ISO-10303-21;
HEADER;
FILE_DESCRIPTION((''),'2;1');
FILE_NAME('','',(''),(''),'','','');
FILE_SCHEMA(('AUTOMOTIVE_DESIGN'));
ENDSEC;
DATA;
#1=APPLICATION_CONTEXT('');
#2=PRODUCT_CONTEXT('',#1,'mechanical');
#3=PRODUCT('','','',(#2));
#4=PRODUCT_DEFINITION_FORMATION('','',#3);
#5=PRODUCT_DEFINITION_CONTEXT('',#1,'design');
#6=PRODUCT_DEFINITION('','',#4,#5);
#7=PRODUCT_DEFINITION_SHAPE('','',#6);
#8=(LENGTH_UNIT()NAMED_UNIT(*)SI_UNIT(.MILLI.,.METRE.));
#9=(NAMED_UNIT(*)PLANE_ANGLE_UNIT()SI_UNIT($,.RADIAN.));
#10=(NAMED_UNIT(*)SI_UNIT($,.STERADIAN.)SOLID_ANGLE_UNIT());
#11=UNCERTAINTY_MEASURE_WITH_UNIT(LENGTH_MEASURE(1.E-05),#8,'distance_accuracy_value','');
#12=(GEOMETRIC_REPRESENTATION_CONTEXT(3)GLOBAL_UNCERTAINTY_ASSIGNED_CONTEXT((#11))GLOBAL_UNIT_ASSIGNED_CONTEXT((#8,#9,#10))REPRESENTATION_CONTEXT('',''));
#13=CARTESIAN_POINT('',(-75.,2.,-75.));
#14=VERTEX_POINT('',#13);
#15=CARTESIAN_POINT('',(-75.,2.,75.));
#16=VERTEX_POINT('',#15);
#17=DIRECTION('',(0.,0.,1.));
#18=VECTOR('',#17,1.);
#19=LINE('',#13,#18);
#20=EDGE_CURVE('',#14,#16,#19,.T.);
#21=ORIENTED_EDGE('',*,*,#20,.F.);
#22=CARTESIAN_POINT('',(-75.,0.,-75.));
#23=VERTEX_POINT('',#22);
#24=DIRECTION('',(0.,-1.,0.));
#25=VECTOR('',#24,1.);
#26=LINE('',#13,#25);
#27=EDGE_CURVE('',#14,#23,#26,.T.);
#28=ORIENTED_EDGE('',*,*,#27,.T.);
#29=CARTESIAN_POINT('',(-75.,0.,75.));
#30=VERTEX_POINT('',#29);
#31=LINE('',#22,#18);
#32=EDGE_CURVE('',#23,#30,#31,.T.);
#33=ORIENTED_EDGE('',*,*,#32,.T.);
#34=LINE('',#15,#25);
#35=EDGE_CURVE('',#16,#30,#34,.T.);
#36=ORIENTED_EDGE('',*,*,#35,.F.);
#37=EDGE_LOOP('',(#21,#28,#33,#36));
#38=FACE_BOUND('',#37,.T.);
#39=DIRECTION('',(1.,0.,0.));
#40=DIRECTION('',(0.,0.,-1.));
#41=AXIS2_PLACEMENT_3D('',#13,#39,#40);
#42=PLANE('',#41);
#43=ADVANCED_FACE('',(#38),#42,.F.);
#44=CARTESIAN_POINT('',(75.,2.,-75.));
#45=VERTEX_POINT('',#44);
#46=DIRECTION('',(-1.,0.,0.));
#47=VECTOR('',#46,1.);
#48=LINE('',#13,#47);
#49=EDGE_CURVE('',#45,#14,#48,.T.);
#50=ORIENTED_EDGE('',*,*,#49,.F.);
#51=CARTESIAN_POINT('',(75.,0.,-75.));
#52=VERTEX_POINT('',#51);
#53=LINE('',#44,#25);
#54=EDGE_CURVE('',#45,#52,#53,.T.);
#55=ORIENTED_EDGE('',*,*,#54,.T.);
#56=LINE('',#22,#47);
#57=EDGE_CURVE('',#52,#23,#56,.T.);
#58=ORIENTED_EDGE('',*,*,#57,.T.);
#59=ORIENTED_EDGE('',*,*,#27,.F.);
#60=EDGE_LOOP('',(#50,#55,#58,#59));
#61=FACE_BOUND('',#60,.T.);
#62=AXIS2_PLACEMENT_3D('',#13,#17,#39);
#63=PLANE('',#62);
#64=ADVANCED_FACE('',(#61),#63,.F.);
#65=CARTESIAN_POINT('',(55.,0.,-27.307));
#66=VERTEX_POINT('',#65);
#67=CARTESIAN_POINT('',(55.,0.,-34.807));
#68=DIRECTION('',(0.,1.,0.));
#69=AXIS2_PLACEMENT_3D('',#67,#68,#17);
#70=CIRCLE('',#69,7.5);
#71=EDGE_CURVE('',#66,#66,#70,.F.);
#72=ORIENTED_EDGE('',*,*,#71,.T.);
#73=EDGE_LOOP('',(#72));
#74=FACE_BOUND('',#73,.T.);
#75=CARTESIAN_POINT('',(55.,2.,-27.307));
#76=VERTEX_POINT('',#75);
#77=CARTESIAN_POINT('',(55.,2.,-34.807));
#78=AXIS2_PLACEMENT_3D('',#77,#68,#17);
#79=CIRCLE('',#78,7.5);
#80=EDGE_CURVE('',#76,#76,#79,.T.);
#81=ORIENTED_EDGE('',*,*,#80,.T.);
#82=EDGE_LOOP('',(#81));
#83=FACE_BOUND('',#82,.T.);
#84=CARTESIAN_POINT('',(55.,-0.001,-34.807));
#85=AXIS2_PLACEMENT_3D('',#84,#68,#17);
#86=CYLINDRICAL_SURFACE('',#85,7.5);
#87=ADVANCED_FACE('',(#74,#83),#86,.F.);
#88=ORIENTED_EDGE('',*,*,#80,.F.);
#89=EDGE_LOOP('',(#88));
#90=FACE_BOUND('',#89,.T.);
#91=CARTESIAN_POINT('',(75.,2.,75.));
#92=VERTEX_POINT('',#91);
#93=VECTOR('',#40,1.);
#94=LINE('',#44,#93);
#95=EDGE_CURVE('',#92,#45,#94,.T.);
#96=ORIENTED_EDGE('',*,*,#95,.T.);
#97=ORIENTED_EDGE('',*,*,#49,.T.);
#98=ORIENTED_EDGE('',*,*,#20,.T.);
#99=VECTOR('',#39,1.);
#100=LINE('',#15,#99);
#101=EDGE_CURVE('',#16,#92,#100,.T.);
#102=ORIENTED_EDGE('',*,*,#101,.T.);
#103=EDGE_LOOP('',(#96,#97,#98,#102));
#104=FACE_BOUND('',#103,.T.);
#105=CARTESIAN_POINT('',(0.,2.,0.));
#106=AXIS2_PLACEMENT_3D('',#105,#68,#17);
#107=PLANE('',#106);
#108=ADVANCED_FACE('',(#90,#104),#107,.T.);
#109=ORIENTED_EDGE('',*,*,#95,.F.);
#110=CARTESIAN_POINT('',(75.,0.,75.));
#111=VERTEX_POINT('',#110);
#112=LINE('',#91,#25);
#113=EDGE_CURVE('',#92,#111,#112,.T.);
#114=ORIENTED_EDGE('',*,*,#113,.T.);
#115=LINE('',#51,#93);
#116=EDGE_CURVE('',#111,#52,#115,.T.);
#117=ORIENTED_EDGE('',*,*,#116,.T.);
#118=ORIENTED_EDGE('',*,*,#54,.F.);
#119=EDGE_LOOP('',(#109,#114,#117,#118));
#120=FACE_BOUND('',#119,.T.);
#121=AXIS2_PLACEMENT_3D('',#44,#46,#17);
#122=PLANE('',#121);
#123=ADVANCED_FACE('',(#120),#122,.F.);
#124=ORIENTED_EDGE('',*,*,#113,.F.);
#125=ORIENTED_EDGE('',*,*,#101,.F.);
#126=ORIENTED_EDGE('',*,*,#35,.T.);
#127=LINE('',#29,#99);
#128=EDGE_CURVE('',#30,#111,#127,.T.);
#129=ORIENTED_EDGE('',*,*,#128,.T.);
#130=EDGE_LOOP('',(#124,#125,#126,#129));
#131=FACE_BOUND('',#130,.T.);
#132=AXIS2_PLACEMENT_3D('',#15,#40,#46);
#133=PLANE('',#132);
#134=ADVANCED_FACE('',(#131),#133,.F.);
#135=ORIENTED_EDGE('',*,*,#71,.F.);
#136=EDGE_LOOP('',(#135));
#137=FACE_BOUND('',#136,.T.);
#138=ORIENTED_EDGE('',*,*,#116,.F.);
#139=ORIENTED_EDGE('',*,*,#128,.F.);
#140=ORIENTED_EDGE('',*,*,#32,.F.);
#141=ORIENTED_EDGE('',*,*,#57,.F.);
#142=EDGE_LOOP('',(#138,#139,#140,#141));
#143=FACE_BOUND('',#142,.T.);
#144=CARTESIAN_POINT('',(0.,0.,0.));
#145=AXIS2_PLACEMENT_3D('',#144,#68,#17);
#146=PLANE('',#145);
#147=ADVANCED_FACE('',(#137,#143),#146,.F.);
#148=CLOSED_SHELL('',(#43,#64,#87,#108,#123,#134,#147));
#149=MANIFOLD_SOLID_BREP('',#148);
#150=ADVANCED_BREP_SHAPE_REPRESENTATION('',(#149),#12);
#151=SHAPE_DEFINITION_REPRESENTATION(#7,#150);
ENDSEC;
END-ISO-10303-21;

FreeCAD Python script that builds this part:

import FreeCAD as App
import Part
import Sketcher

doc = App.newDocument("Part")
body = doc.addObject("PartDesign::Body", "Body")

sketch1 = body.newObject("Sketcher::SketchObject", "Sketch")
sketch1.AttachmentSupport = (doc.getObject("XZ_Plane"), [""])
sketch1.MapMode = "FlatFace"
sketch1.addGeometry(Part.LineSegment(App.Vector(-75, -75, 0), App.Vector(-75, 75, 0)), False)
sketch1.addGeometry(Part.LineSegment(App.Vector(-75, 75, 0), App.Vector(75, 75, 0)), False)
sketch1.addGeometry(Part.LineSegment(App.Vector(75, 75, 0), App.Vector(75, -75, 0)), False)
sketch1.addGeometry(Part.LineSegment(App.Vector(75, -75, 0), App.Vector(-75, -75, 0)), False)
sketch1.addConstraint(Sketcher.Constraint("Coincident", 0, 2, 1, 1))
sketch1.addConstraint(Sketcher.Constraint("Coincident", 1, 2, 2, 1))
sketch1.addConstraint(Sketcher.Constraint("Coincident", 2, 2, 3, 1))
sketch1.addConstraint(Sketcher.Constraint("Coincident", 3, 2, 0, 1))
sketch1.addConstraint(Sketcher.Constraint("Vertical", 0))
sketch1.addConstraint(Sketcher.Constraint("Horizontal", 1))
sketch1.addConstraint(Sketcher.Constraint("Vertical", 2))
sketch1.addConstraint(Sketcher.Constraint("Horizontal", 3))
sketch1.addConstraint(Sketcher.Constraint("Symmetric", 0, 2, 2, 2, -1, 1))
sketch1.addConstraint(Sketcher.Constraint("Equal", 3, 0))
sketch1.addConstraint(Sketcher.Constraint("DistanceX", 1, 1, 1, 2, 150.0))
pad1 = body.newObject("PartDesign::Pad", "Pad")
pad1.Profile = sketch1
pad1.Length = 2
pad1.Reversed = True

sketch2 = body.newObject("Sketcher::SketchObject", "Sketch001")
sketch2.AttachmentSupport = (doc.getObject("XZ_Plane"), [""])
sketch2.MapMode = "FlatFace"
sketch2.AttachmentOffset = App.Placement(App.Vector(0, 0, -2), App.Rotation())
sketch2.addGeometry(Part.Circle(App.Vector(55, -35, 0), App.Vector(0, 0, 1), 8), False)
sketch2.addConstraint(Sketcher.Constraint("Diameter", 0, 15.0))
sketch2.addConstraint(Sketcher.Constraint("DistanceX", -1, 1, 0, 3, 55.0))
sketch2.addConstraint(Sketcher.Constraint("DistanceY", 0, 3, -1, 1, 34.807))
pocket1 = body.newObject("PartDesign::Pocket", "Pocket")
pocket1.Profile = sketch2
pocket1.Type = "UpToFirst"
pocket1.Reversed = True

doc.recompute()
